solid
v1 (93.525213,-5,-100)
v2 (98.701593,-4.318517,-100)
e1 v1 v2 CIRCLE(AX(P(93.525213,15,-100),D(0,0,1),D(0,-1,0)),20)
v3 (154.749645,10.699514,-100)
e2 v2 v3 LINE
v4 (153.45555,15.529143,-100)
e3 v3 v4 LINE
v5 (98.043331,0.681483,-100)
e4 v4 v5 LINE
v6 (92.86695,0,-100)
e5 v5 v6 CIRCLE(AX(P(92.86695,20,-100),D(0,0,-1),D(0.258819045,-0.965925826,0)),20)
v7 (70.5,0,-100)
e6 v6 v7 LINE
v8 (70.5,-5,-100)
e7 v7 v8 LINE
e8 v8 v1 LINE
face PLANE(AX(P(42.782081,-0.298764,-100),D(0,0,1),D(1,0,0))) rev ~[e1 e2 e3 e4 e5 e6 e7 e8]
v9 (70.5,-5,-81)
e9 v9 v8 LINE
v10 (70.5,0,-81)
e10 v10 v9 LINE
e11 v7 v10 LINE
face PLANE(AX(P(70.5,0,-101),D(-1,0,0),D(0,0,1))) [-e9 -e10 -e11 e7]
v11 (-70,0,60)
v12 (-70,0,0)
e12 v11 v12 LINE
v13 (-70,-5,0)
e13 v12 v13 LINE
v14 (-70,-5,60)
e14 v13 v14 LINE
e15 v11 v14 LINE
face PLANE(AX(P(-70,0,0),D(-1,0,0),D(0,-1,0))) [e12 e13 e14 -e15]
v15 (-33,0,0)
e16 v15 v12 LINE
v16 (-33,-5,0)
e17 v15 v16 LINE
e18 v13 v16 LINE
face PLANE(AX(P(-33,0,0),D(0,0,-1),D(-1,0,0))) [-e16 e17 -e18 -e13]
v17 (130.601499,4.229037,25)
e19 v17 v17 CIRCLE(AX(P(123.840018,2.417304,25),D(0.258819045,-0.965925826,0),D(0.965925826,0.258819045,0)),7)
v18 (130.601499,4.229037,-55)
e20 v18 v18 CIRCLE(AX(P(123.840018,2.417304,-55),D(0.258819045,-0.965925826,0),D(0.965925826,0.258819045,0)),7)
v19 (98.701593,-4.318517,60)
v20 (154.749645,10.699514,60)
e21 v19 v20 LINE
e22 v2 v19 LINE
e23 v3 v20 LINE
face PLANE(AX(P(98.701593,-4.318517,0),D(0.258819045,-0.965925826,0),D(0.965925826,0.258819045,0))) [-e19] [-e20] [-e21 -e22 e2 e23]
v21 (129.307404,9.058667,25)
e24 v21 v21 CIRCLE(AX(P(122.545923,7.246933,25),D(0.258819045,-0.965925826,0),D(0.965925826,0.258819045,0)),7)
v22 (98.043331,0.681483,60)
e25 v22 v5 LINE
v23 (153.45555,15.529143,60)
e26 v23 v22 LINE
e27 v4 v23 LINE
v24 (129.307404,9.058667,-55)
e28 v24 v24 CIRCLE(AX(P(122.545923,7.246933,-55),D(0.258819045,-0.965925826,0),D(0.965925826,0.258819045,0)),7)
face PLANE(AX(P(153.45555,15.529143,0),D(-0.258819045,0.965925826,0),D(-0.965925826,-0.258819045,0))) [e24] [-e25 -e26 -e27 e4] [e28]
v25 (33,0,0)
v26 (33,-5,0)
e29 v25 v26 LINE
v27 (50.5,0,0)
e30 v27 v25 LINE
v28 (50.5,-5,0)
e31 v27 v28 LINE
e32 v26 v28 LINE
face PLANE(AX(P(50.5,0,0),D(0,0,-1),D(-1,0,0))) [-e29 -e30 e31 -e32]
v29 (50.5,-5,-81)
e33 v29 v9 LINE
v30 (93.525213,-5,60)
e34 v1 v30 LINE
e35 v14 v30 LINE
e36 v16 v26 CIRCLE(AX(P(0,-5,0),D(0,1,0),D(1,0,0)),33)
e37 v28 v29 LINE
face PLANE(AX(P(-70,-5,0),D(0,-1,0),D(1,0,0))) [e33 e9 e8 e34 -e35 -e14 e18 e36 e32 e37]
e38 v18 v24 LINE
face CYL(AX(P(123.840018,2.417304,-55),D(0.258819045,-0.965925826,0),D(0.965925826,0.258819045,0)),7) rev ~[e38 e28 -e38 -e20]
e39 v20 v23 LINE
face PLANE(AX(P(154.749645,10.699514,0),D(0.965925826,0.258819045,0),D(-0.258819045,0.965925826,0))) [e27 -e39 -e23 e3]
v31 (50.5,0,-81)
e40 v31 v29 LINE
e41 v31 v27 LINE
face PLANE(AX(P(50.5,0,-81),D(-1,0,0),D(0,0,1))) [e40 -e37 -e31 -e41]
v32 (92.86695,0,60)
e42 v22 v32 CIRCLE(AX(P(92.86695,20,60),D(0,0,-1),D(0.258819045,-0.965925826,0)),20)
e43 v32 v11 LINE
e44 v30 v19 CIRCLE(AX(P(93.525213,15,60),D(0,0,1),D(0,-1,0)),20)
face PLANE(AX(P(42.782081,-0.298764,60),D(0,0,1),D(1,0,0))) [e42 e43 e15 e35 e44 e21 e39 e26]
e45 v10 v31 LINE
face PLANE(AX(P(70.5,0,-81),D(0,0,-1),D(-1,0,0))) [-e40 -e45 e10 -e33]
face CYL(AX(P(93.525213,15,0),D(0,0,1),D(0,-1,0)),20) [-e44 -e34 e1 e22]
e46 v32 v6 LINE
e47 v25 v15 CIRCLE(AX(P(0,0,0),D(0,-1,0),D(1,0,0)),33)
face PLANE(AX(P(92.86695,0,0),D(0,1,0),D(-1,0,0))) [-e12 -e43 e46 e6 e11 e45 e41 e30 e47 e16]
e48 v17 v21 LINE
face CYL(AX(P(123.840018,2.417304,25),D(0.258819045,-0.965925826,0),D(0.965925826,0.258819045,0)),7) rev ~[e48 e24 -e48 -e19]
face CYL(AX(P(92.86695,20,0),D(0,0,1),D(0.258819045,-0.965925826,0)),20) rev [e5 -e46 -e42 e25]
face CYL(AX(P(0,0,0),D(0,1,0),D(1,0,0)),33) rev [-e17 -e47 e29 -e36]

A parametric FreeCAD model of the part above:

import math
import FreeCAD as App
import Part
import Sketcher
Q = App.Units.Quantity

doc = App.newDocument("Part")
body = doc.addObject("PartDesign::Body", "Body")

# Sketch on XY plane
sketch1 = doc.addObject("Sketcher::SketchObject", "Sketch")
body.addObject(sketch1)
sketch1.AttachmentSupport = (doc.XY_Plane, [""])
sketch1.MapMode = "FlatFace"
sketch1.addGeometry(Part.LineSegment(App.Vector(-70, 0, 0), App.Vector(-70, -5, 0)), False)
sketch1.addGeometry(Part.LineSegment(App.Vector(-70, -5, 0), App.Vector(93.5, -5, 0)), False)
sketch1.addGeometry(Part.ArcOfCircle(Part.Circle(App.Vector(93.5, 15, 0), App.Vector(0, 0, 1), 20), math.radians(-90), math.radians(-75)), False)
sketch1.addGeometry(Part.LineSegment(App.Vector(98.7, -4.3, 0), App.Vector(154.7, 10.7, 0)), False)
sketch1.addGeometry(Part.LineSegment(App.Vector(154.7, 10.7, 0), App.Vector(153.5, 15.5, 0)), False)
sketch1.addGeometry(Part.LineSegment(App.Vector(153.5, 15.5, 0), App.Vector(98, 0.7, 0)), False)
sketch1.addGeometry(Part.ArcOfCircle(Part.Circle(App.Vector(92.9, 20, 0), App.Vector(0, 0, 1), 20), math.radians(-90), math.radians(-75)), False)
sketch1.addGeometry(Part.LineSegment(App.Vector(92.9, 0, 0), App.Vector(-70, 0, 0)), False)
sketch1.addConstraint(Sketcher.Constraint("Coincident", 0, 2, 1, 1))
sketch1.addConstraint(Sketcher.Constraint("Tangent", 1, 2, 2, 1))
sketch1.addConstraint(Sketcher.Constraint("Tangent", 2, 2, 3, 1))
sketch1.addConstraint(Sketcher.Constraint("Coincident", 3, 2, 4, 1))
sketch1.addConstraint(Sketcher.Constraint("Coincident", 4, 2, 5, 1))
sketch1.addConstraint(Sketcher.Constraint("Tangent", 5, 2, 6, 2))
sketch1.addConstraint(Sketcher.Constraint("Tangent", 6, 1, 7, 1))
sketch1.addConstraint(Sketcher.Constraint("Coincident", 7, 2, 0, 1))
sketch1.addConstraint(Sketcher.Constraint("Vertical", 0))
sketch1.addConstraint(Sketcher.Constraint("Horizontal", 1))
sketch1.addConstraint(Sketcher.Constraint("Horizontal", 7))
sketch1.addConstraint(Sketcher.Constraint("Equal", 2, 6))
sketch1.addConstraint(Sketcher.Constraint("PointOnObject", 6, 1, -1))
sketch1.addConstraint(Sketcher.Constraint("Perpendicular", 3, 4))
sketch1.addConstraint(Sketcher.Constraint("Perpendicular", 4, 5))
sketch1.addConstraint(Sketcher.Constraint("Radius", 2, Q("20 mm")))
sketch1.addConstraint(Sketcher.Constraint("DistanceY", 0, 2, 0, 1, Q("5 mm")))
sketch1.addConstraint(Sketcher.Constraint("Angle", 3, Q("15 deg")))
sketch1.addConstraint(Sketcher.Constraint("Distance", 4, Q("5 mm")))
sketch1.addConstraint(Sketcher.Constraint("DistanceX", 0, 2, -1, 1, Q("70 mm")))
sketch1.addConstraint(Sketcher.Constraint("DistanceX", 7, 2, 7, 1, Q("162.86695 mm")))
sketch1.addConstraint(Sketcher.Constraint("DistanceX", 6, 3, 4, 2, Q("60.5886 mm")))
pad1 = doc.addObject("PartDesign::Pad", "Pad")
body.addObject(pad1)
pad1.Profile = sketch1
pad1.Type = "TwoLengths"
pad1.Length = 60
pad1.Length2 = 100

# Sketch on XZ plane
sketch2 = doc.addObject("Sketcher::SketchObject", "Sketch001")
body.addObject(sketch2)
sketch2.AttachmentSupport = (doc.XZ_Plane, [""])
sketch2.MapMode = "FlatFace"
sketch2.addGeometry(Part.LineSegment(App.Vector(50, 0, 0), App.Vector(33, 0, 0)), False)
sketch2.addGeometry(Part.ArcOfCircle(Part.Circle(App.Vector(0, 0, 0), App.Vector(0, 0, 1), 33), math.radians(0), math.radians(180)), False)
sketch2.addGeometry(Part.LineSegment(App.Vector(-33, 0, 0), App.Vector(-70, 0, 0)), False)
sketch2.addGeometry(Part.LineSegment(App.Vector(-70, 0, 0), App.Vector(-70, -101, 0)), False)
sketch2.addGeometry(Part.LineSegment(App.Vector(-70, -101, 0), App.Vector(70, -101, 0)), False)
sketch2.addGeometry(Part.LineSegment(App.Vector(70, -101, 0), App.Vector(70, -81, 0)), False)
sketch2.addGeometry(Part.LineSegment(App.Vector(70, -81, 0), App.Vector(50, -81, 0)), False)
sketch2.addGeometry(Part.LineSegment(App.Vector(50, -81, 0), App.Vector(50, 0, 0)), False)
sketch2.addConstraint(Sketcher.Constraint("Coincident", 0, 2, 1, 1))
sketch2.addConstraint(Sketcher.Constraint("Coincident", 1, 2, 2, 1))
sketch2.addConstraint(Sketcher.Constraint("Coincident", 2, 2, 3, 1))
sketch2.addConstraint(Sketcher.Constraint("Coincident", 3, 2, 4, 1))
sketch2.addConstraint(Sketcher.Constraint("Coincident", 4, 2, 5, 1))
sketch2.addConstraint(Sketcher.Constraint("Coincident", 5, 2, 6, 1))
sketch2.addConstraint(Sketcher.Constraint("Coincident", 6, 2, 7, 1))
sketch2.addConstraint(Sketcher.Constraint("Coincident", 7, 2, 0, 1))
sketch2.addConstraint(Sketcher.Constraint("Horizontal", 0))
sketch2.addConstraint(Sketcher.Constraint("Horizontal", 2))
sketch2.addConstraint(Sketcher.Constraint("Vertical", 3))
sketch2.addConstraint(Sketcher.Constraint("Horizontal", 4))
sketch2.addConstraint(Sketcher.Constraint("Vertical", 5))
sketch2.addConstraint(Sketcher.Constraint("Horizontal", 6))
sketch2.addConstraint(Sketcher.Constraint("Vertical", 7))
sketch2.addConstraint(Sketcher.Constraint("Coincident", 1, 3, -1, 1))
sketch2.addConstraint(Sketcher.Constraint("PointOnObject", 0, 2, -1))
sketch2.addConstraint(Sketcher.Constraint("PointOnObject", 1, 2, -1))
sketch2.addConstraint(Sketcher.Constraint("Equal", 6, 5))
sketch2.addConstraint(Sketcher.Constraint("Radius", 1, Q("33 mm")))
sketch2.addConstraint(Sketcher.Constraint("DistanceX", 2, 2, 2, 1, Q("37 mm")))
sketch2.addConstraint(Sketcher.Constraint("DistanceX", 6, 2, 6, 1, Q("20 mm")))
sketch2.addConstraint(Sketcher.Constraint("DistanceY", 3, 2, 3, 1, Q("101 mm")))
sketch2.addConstraint(Sketcher.Constraint("DistanceX", 0, 2, 0, 1, Q("17.5 mm")))
pocket1 = doc.addObject("PartDesign::Pocket", "Pocket")
body.addObject(pocket1)
pocket1.Profile = sketch2
pocket1.Length = 25
pocket1.Reversed = True

# Sketch on an angled plane
sketch3 = doc.addObject("Sketcher::SketchObject", "Sketch002")
body.addObject(sketch3)
sketch3.Placement = App.Placement(App.Vector(7.691382, -28.704629, 0), App.Rotation(App.Vector(0.965925826, 0.258819045, 0), App.Vector(0, 0, 0.999999999), App.Vector(0.258819045, -0.965925826, 0), "ZXY"))
sketch3.addGeometry(Part.Circle(App.Vector(120, 25, 0), App.Vector(0, 0, 1), 7), False)
sketch3.addGeometry(Part.Circle(App.Vector(120, -55, 0), App.Vector(0, 0, 1), 7), False)
sketch3.addConstraint(Sketcher.Constraint("Equal", 0, 1))
sketch3.addConstraint(Sketcher.Constraint("Vertical", 0, 3, 1, 3))
sketch3.addConstraint(Sketcher.Constraint("Diameter", 0, Q("14 mm")))
sketch3.addConstraint(Sketcher.Constraint("DistanceY", -1, 1, 0, 3, Q("25 mm")))
sketch3.addConstraint(Sketcher.Constraint("DistanceY", 1, 3, -1, 1, Q("55 mm")))
sketch3.addConstraint(Sketcher.Constraint("DistanceX", -1, 1, 0, 3, Q("120.245916 mm")))
pocket2 = doc.addObject("PartDesign::Pocket", "Pocket001")
body.addObject(pocket2)
pocket2.Profile = sketch3
pocket2.Length = 25

doc.recompute()
